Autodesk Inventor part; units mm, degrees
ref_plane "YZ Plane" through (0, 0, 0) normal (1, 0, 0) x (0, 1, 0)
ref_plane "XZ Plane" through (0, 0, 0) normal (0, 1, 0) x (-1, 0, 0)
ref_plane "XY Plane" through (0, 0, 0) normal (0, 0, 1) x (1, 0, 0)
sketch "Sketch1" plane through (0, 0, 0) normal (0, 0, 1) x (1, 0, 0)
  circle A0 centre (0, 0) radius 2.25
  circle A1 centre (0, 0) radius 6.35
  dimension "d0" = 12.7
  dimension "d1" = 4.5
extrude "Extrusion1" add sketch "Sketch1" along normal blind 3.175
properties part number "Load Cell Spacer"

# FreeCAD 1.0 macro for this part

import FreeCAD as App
import Part
import Sketcher

V = App.Vector
Q = App.Units.Quantity

doc = App.newDocument("Part")
body = doc.addObject("PartDesign::Body", "Body")

# Sketch on XY plane
sketch1 = body.newObject("Sketcher::SketchObject", "Sketch")
sketch1.AttachmentSupport = (doc.getObject("XY_Plane"), [""])
sketch1.MapMode = "FlatFace"
sketch1.addGeometry([
    Part.Circle(V(0, 0, 0), V(0, 0, 1), 6.3),
    Part.Circle(V(0, 0, 0), V(0, 0, 1), 2.2),
], False)
sketch1.addConstraint([
    Sketcher.Constraint("Coincident", 0, 3, -1, 1),
    Sketcher.Constraint("Coincident", 1, 3, -1, 1),
    Sketcher.Constraint("Diameter", 0, Q("0.5 in")),
    Sketcher.Constraint("Diameter", 1, Q("4.5 mm")),
])
pad1 = body.newObject("PartDesign::Pad", "Pad")
pad1.Profile = sketch1
pad1.Length = Q("0.125 in")

doc.recompute()
